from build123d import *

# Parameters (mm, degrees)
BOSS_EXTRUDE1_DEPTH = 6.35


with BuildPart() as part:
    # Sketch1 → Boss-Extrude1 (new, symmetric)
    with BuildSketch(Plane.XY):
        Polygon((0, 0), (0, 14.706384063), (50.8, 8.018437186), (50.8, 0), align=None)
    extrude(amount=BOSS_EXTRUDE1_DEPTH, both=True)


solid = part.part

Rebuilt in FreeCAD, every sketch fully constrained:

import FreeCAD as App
import Part
import Sketcher
from FreeCAD import Vector
Q = App.Units.Quantity


def add_polygon(sketch, points):
    """Adds a closed chain of lines whose ends are joined by coincident constraints."""
    first, n = sketch.GeometryCount, len(points)
    for a, b in zip(points, points[1:] + points[:1]):
        sketch.addGeometry(Part.LineSegment(App.Vector(*a, 0), App.Vector(*b, 0)), False)
    for i in range(n):
        sketch.addConstraint(Sketcher.Constraint("Coincident", first + i, 2, first + (i + 1) % n, 1))

doc = App.newDocument("Part")
body = doc.addObject("PartDesign::Body", "Body")

sketch1 = body.newObject("Sketcher::SketchObject", "Sketch")
sketch1.AttachmentSupport = (doc.getObject("XY_Plane"), [""])
sketch1.MapMode = "FlatFace"
add_polygon(sketch1, [(0, 15), (0, 0), (51, 0), (51, 8)])
sketch1.addConstraint([
    Sketcher.Constraint("Vertical", 0),
    Sketcher.Constraint("Horizontal", 1),
    Sketcher.Constraint("Vertical", 2),
    Sketcher.Constraint("Coincident", 0, 2, -1, 1),
    Sketcher.Constraint("DistanceX", 1, 1, 1, 2, Q("2 in")),
    Sketcher.Constraint("Angle", 3, Q("172.5 deg")),
    Sketcher.Constraint("DistanceY", 0, 2, 0, 1, Q("14.706384 mm")),
])
pad1 = body.newObject("PartDesign::Pad", "Pad")
pad1.Profile = sketch1
pad1.Length = Q("0.5 in")
pad1.Midplane = True

doc.recompute()
